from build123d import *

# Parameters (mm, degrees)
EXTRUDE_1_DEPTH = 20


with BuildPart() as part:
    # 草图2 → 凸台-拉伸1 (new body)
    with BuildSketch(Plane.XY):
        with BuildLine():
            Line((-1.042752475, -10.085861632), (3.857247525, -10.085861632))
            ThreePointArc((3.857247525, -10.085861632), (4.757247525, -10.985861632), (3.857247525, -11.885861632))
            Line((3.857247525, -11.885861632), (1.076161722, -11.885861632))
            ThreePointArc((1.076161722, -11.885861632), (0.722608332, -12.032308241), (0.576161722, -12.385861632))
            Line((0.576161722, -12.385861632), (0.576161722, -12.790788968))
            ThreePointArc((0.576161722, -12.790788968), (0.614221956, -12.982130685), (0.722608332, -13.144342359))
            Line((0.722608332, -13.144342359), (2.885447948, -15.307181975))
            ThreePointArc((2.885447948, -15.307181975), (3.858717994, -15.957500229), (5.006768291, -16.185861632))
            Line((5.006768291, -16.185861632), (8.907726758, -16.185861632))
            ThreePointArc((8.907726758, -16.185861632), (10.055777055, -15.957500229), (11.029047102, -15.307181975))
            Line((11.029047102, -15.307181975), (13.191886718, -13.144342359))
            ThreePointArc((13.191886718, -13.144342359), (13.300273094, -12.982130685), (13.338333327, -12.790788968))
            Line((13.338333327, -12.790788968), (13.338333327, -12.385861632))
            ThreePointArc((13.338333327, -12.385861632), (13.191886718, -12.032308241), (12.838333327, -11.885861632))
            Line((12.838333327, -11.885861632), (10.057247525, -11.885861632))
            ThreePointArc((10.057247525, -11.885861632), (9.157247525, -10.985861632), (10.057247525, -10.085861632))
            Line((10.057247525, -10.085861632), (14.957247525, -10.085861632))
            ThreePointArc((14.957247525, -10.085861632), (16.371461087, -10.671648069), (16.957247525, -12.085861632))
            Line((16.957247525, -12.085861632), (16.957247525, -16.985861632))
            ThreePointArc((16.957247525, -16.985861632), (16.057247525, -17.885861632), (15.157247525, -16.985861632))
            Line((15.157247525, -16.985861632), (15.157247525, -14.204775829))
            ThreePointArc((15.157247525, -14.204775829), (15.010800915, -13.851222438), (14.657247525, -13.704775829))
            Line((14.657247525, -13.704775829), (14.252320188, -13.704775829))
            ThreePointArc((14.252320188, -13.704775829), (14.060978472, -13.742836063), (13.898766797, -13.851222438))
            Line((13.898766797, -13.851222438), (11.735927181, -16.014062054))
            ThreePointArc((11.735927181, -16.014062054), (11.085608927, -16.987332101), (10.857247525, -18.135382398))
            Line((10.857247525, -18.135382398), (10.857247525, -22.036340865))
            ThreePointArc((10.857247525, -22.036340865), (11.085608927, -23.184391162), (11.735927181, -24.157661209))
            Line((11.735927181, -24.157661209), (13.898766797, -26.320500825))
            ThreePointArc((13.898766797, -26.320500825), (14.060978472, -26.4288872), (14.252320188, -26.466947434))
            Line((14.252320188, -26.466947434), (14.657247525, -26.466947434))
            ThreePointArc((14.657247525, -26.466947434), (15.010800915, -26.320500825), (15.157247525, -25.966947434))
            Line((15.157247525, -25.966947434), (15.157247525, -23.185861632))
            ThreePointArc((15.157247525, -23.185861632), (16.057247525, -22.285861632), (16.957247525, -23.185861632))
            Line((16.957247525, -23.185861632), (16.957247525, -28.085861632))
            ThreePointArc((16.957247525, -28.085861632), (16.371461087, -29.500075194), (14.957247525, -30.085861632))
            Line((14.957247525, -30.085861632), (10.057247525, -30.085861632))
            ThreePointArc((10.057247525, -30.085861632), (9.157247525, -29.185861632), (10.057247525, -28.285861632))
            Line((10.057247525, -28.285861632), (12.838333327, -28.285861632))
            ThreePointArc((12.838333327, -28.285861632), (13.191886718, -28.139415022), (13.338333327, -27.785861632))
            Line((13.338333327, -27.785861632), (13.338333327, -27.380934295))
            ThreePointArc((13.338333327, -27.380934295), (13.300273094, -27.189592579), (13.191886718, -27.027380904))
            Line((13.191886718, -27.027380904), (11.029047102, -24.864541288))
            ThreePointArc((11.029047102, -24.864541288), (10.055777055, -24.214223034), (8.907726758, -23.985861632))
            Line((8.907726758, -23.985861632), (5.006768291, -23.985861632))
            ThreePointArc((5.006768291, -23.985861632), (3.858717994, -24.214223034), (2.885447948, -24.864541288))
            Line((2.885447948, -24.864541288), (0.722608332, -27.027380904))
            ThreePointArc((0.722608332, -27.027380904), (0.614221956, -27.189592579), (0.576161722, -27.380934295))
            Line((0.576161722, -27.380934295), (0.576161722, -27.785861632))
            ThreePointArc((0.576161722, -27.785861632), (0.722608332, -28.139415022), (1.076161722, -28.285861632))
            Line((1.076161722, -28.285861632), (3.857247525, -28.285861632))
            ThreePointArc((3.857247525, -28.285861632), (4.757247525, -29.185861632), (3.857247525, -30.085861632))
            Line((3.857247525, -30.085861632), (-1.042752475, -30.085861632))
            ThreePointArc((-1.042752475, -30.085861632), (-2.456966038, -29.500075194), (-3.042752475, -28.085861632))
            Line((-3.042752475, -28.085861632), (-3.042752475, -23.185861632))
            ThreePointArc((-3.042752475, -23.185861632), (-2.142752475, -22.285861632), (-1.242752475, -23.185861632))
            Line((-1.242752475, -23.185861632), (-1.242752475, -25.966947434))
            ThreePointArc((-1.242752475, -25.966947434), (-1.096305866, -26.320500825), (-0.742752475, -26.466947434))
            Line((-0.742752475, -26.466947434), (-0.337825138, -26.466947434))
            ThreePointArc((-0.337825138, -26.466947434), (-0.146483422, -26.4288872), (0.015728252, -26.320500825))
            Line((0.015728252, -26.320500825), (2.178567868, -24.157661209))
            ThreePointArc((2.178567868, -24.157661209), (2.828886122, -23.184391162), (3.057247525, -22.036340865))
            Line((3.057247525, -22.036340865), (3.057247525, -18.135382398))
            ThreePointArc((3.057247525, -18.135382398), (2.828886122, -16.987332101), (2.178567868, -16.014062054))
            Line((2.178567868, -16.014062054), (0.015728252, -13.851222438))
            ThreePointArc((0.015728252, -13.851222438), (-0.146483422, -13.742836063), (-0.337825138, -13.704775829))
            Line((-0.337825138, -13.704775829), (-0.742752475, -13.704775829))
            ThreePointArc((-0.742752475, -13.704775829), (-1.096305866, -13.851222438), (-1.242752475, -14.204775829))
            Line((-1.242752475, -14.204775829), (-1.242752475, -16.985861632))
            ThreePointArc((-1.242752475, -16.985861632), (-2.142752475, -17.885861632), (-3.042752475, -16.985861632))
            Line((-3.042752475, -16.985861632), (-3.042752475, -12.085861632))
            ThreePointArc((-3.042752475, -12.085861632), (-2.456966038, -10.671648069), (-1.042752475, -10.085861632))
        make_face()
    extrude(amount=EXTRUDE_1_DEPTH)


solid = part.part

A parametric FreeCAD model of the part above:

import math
import FreeCAD as App
import Part
import Sketcher

V = App.Vector
Q = App.Units.Quantity

doc = App.newDocument("Part")
body = doc.addObject("PartDesign::Body", "Body")

# Sketch on XY plane
sketch1 = body.newObject("Sketcher::SketchObject", "Sketch")
sketch1.AttachmentSupport = (doc.getObject("XY_Plane"), [""])
sketch1.MapMode = "FlatFace"
sketch1.addGeometry(Part.LineSegment(V(3.86, -10.09, 0), V(-1.04, -10.09, 0)), False)
sketch1.addGeometry(Part.ArcOfCircle(Part.Circle(V(-1.04, -12.09, 0), V(0, 0, 1), 2), math.radians(90), math.radians(180)), False)
sketch1.addGeometry(Part.LineSegment(V(-3.04, -12.09, 0), V(-3.04, -16.99, 0)), False)
sketch1.addGeometry(Part.ArcOfCircle(Part.Circle(V(-2.14, -16.99, 0), V(0, 0, 1), 0.9), math.radians(180), math.radians(360)), False)
sketch1.addGeometry(Part.LineSegment(V(-1.24, -16.99, 0), V(-1.24, -14.2, 0)), False)
sketch1.addGeometry(Part.ArcOfCircle(Part.Circle(V(-0.74, -14.2, 0), V(0, 0, 1), 0.5), math.radians(90), math.radians(180)), False)
sketch1.addGeometry(Part.LineSegment(V(-0.74, -13.7, 0), V(-0.34, -13.7, 0)), False)
sketch1.addGeometry(Part.ArcOfCircle(Part.Circle(V(-0.34, -14.2, 0), V(0, 0, 1), 0.5), math.radians(45), math.radians(90)), False)
sketch1.addGeometry(Part.LineSegment(V(0.02, -13.85, 0), V(2.18, -16.01, 0)), False)
sketch1.addGeometry(Part.ArcOfCircle(Part.Circle(V(0.06, -18.14, 0), V(0, 0, 1), 3), math.radians(0), math.radians(45)), False)
sketch1.addGeometry(Part.LineSegment(V(3.06, -18.14, 0), V(3.06, -22.04, 0)), False)
sketch1.addGeometry(Part.ArcOfCircle(Part.Circle(V(0.06, -22.04, 0), V(0, 0, 1), 3), math.radians(-45), math.radians(0)), False)
sketch1.addGeometry(Part.LineSegment(V(2.18, -24.16, 0), V(0.02, -26.32, 0)), False)
sketch1.addGeometry(Part.ArcOfCircle(Part.Circle(V(-0.34, -25.97, 0), V(0, 0, 1), 0.5), math.radians(-90), math.radians(-45)), False)
sketch1.addGeometry(Part.LineSegment(V(-0.34, -26.47, 0), V(-0.74, -26.47, 0)), False)
sketch1.addGeometry(Part.ArcOfCircle(Part.Circle(V(-0.74, -25.97, 0), V(0, 0, 1), 0.5), math.radians(180), math.radians(270)), False)
sketch1.addGeometry(Part.LineSegment(V(-1.24, -25.97, 0), V(-1.24, -23.19, 0)), False)
sketch1.addGeometry(Part.ArcOfCircle(Part.Circle(V(-2.14, -23.19, 0), V(0, 0, 1), 0.9), math.radians(0), math.radians(180)), False)
sketch1.addGeometry(Part.LineSegment(V(-3.04, -23.19, 0), V(-3.04, -28.09, 0)), False)
sketch1.addGeometry(Part.ArcOfCircle(Part.Circle(V(-1.04, -28.09, 0), V(0, 0, 1), 2), math.radians(180), math.radians(270)), False)
sketch1.addGeometry(Part.LineSegment(V(-1.04, -30.09, 0), V(3.86, -30.09, 0)), False)
sketch1.addGeometry(Part.ArcOfCircle(Part.Circle(V(3.86, -29.19, 0), V(0, 0, 1), 0.9), math.radians(-90), math.radians(90)), False)
sketch1.addGeometry(Part.LineSegment(V(3.86, -28.29, 0), V(1.08, -28.29, 0)), False)
sketch1.addGeometry(Part.ArcOfCircle(Part.Circle(V(1.08, -27.79, 0), V(0, 0, 1), 0.5), math.radians(-180), math.radians(-90)), False)
sketch1.addGeometry(Part.LineSegment(V(0.58, -27.79, 0), V(0.58, -27.38, 0)), False)
sketch1.addGeometry(Part.ArcOfCircle(Part.Circle(V(1.08, -27.38, 0), V(0, 0, 1), 0.5), math.radians(135), math.radians(180)), False)
sketch1.addGeometry(Part.LineSegment(V(0.72, -27.03, 0), V(2.89, -24.86, 0)), False)
sketch1.addGeometry(Part.ArcOfCircle(Part.Circle(V(5.01, -26.99, 0), V(0, 0, 1), 3), math.radians(90), math.radians(135)), False)
sketch1.addGeometry(Part.LineSegment(V(5.01, -23.99, 0), V(8.91, -23.99, 0)), False)
sketch1.addGeometry(Part.ArcOfCircle(Part.Circle(V(8.91, -26.99, 0), V(0, 0, 1), 3), math.radians(45), math.radians(90)), False)
sketch1.addGeometry(Part.LineSegment(V(11.03, -24.86, 0), V(13.19, -27.03, 0)), False)
sketch1.addGeometry(Part.ArcOfCircle(Part.Circle(V(12.84, -27.38, 0), V(0, 0, 1), 0.5), math.radians(0), math.radians(45)), False)
sketch1.addGeometry(Part.LineSegment(V(13.34, -27.38, 0), V(13.34, -27.79, 0)), False)
sketch1.addGeometry(Part.ArcOfCircle(Part.Circle(V(12.84, -27.79, 0), V(0, 0, 1), 0.5), math.radians(-90), math.radians(0)), False)
sketch1.addGeometry(Part.LineSegment(V(12.84, -28.29, 0), V(10.06, -28.29, 0)), False)
sketch1.addGeometry(Part.ArcOfCircle(Part.Circle(V(10.06, -29.19, 0), V(0, 0, 1), 0.9), math.radians(90), math.radians(270)), False)
sketch1.addGeometry(Part.LineSegment(V(10.06, -30.09, 0), V(14.96, -30.09, 0)), False)
sketch1.addGeometry(Part.ArcOfCircle(Part.Circle(V(14.96, -28.09, 0), V(0, 0, 1), 2), math.radians(-90), math.radians(0)), False)
sketch1.addGeometry(Part.LineSegment(V(16.96, -28.09, 0), V(16.96, -23.19, 0)), False)
sketch1.addGeometry(Part.ArcOfCircle(Part.Circle(V(16.06, -23.19, 0), V(0, 0, 1), 0.9), math.radians(0), math.radians(180)), False)
sketch1.addGeometry(Part.LineSegment(V(15.16, -23.19, 0), V(15.16, -25.97, 0)), False)
sketch1.addGeometry(Part.ArcOfCircle(Part.Circle(V(14.66, -25.97, 0), V(0, 0, 1), 0.5), math.radians(-90), math.radians(0)), False)
sketch1.addGeometry(Part.LineSegment(V(14.66, -26.47, 0), V(14.25, -26.47, 0)), False)
sketch1.addGeometry(Part.ArcOfCircle(Part.Circle(V(14.25, -25.97, 0), V(0, 0, 1), 0.5), math.radians(-135), math.radians(-90)), False)
sketch1.addGeometry(Part.LineSegment(V(13.9, -26.32, 0), V(11.74, -24.16, 0)), False)
sketch1.addGeometry(Part.ArcOfCircle(Part.Circle(V(13.86, -22.04, 0), V(0, 0, 1), 3), math.radians(180), math.radians(225)), False)
sketch1.addGeometry(Part.LineSegment(V(10.86, -22.04, 0), V(10.86, -18.14, 0)), False)
sketch1.addGeometry(Part.ArcOfCircle(Part.Circle(V(13.86, -18.14, 0), V(0, 0, 1), 3), math.radians(135), math.radians(180)), False)
sketch1.addGeometry(Part.LineSegment(V(11.74, -16.01, 0), V(13.9, -13.85, 0)), False)
sketch1.addGeometry(Part.ArcOfCircle(Part.Circle(V(14.25, -14.2, 0), V(0, 0, 1), 0.5), math.radians(90), math.radians(135)), False)
sketch1.addGeometry(Part.LineSegment(V(14.25, -13.7, 0), V(14.66, -13.7, 0)), False)
sketch1.addGeometry(Part.ArcOfCircle(Part.Circle(V(14.66, -14.2, 0), V(0, 0, 1), 0.5), math.radians(0), math.radians(90)), False)
sketch1.addGeometry(Part.LineSegment(V(15.16, -14.2, 0), V(15.16, -16.99, 0)), False)
sketch1.addGeometry(Part.ArcOfCircle(Part.Circle(V(16.06, -16.99, 0), V(0, 0, 1), 0.9), math.radians(180), math.radians(360)), False)
sketch1.addGeometry(Part.LineSegment(V(16.96, -16.99, 0), V(16.96, -12.09, 0)), False)
sketch1.addGeometry(Part.ArcOfCircle(Part.Circle(V(14.96, -12.09, 0), V(0, 0, 1), 2), math.radians(0), math.radians(90)), False)
sketch1.addGeometry(Part.LineSegment(V(14.96, -10.09, 0), V(10.06, -10.09, 0)), False)
sketch1.addGeometry(Part.ArcOfCircle(Part.Circle(V(10.06, -10.99, 0), V(0, 0, 1), 0.9), math.radians(90), math.radians(270)), False)
sketch1.addGeometry(Part.LineSegment(V(10.06, -11.89, 0), V(12.84, -11.89, 0)), False)
sketch1.addGeometry(Part.ArcOfCircle(Part.Circle(V(12.84, -12.39, 0), V(0, 0, 1), 0.5), math.radians(0), math.radians(90)), False)
sketch1.addGeometry(Part.LineSegment(V(13.34, -12.39, 0), V(13.34, -12.79, 0)), False)
sketch1.addGeometry(Part.ArcOfCircle(Part.Circle(V(12.84, -12.79, 0), V(0, 0, 1), 0.5), math.radians(-45), math.radians(0)), False)
sketch1.addGeometry(Part.LineSegment(V(13.19, -13.14, 0), V(11.03, -15.31, 0)), False)
sketch1.addGeometry(Part.ArcOfCircle(Part.Circle(V(8.91, -13.19, 0), V(0, 0, 1), 3), math.radians(-90), math.radians(-45)), False)
sketch1.addGeometry(Part.LineSegment(V(8.91, -16.19, 0), V(5.01, -16.19, 0)), False)
sketch1.addGeometry(Part.ArcOfCircle(Part.Circle(V(5.01, -13.19, 0), V(0, 0, 1), 3), math.radians(-135), math.radians(-90)), False)
sketch1.addGeometry(Part.LineSegment(V(2.89, -15.31, 0), V(0.72, -13.14, 0)), False)
sketch1.addGeometry(Part.ArcOfCircle(Part.Circle(V(1.08, -12.79, 0), V(0, 0, 1), 0.5), math.radians(180), math.radians(225)), False)
sketch1.addGeometry(Part.LineSegment(V(0.58, -12.79, 0), V(0.58, -12.39, 0)), False)
sketch1.addGeometry(Part.ArcOfCircle(Part.Circle(V(1.08, -12.39, 0), V(0, 0, 1), 0.5), math.radians(90), math.radians(180)), False)
sketch1.addGeometry(Part.LineSegment(V(1.08, -11.89, 0), V(3.86, -11.89, 0)), False)
sketch1.addGeometry(Part.ArcOfCircle(Part.Circle(V(3.86, -10.99, 0), V(0, 0, 1), 0.9), math.radians(-90), math.radians(90)), False)
sketch1.addConstraint(Sketcher.Constraint("Tangent", 0, 2, 1, 1))
sketch1.addConstraint(Sketcher.Constraint("Tangent", 1, 2, 2, 1))
sketch1.addConstraint(Sketcher.Constraint("Tangent", 2, 2, 3, 1))
sketch1.addConstraint(Sketcher.Constraint("Tangent", 3, 2, 4, 1))
sketch1.addConstraint(Sketcher.Constraint("Tangent", 4, 2, 5, 2))
sketch1.addConstraint(Sketcher.Constraint("Tangent", 5, 1, 6, 1))
sketch1.addConstraint(Sketcher.Constraint("Tangent", 6, 2, 7, 2))
sketch1.addConstraint(Sketcher.Constraint("Tangent", 7, 1, 8, 1))
sketch1.addConstraint(Sketcher.Constraint("Tangent", 8, 2, 9, 2))
sketch1.addConstraint(Sketcher.Constraint("Tangent", 9, 1, 10, 1))
sketch1.addConstraint(Sketcher.Constraint("Tangent", 10, 2, 11, 2))
sketch1.addConstraint(Sketcher.Constraint("Tangent", 11, 1, 12, 1))
sketch1.addConstraint(Sketcher.Constraint("Tangent", 12, 2, 13, 2))
sketch1.addConstraint(Sketcher.Constraint("Tangent", 13, 1, 14, 1))
sketch1.addConstraint(Sketcher.Constraint("Tangent", 14, 2, 15, 2))
sketch1.addConstraint(Sketcher.Constraint("Tangent", 15, 1, 16, 1))
sketch1.addConstraint(Sketcher.Constraint("Tangent", 16, 2, 17, 1))
sketch1.addConstraint(Sketcher.Constraint("Tangent", 17, 2, 18, 1))
sketch1.addConstraint(Sketcher.Constraint("Tangent", 18, 2, 19, 1))
sketch1.addConstraint(Sketcher.Constraint("Tangent", 19, 2, 20, 1))
sketch1.addConstraint(Sketcher.Constraint("Tangent", 20, 2, 21, 1))
sketch1.addConstraint(Sketcher.Constraint("Tangent", 21, 2, 22, 1))
sketch1.addConstraint(Sketcher.Constraint("Tangent", 22, 2, 23, 2))
sketch1.addConstraint(Sketcher.Constraint("Tangent", 23, 1, 24, 1))
sketch1.addConstraint(Sketcher.Constraint("Tangent", 24, 2, 25, 2))
sketch1.addConstraint(Sketcher.Constraint("Tangent", 25, 1, 26, 1))
sketch1.addConstraint(Sketcher.Constraint("Tangent", 26, 2, 27, 2))
sketch1.addConstraint(Sketcher.Constraint("Tangent", 27, 1, 28, 1))
sketch1.addConstraint(Sketcher.Constraint("Tangent", 28, 2, 29, 2))
sketch1.addConstraint(Sketcher.Constraint("Tangent", 29, 1, 30, 1))
sketch1.addConstraint(Sketcher.Constraint("Tangent", 30, 2, 31, 2))
sketch1.addConstraint(Sketcher.Constraint("Tangent", 31, 1, 32, 1))
sketch1.addConstraint(Sketcher.Constraint("Tangent", 32, 2, 33, 2))
sketch1.addConstraint(Sketcher.Constraint("Tangent", 33, 1, 34, 1))
sketch1.addConstraint(Sketcher.Constraint("Tangent", 34, 2, 35, 1))
sketch1.addConstraint(Sketcher.Constraint("Tangent", 35, 2, 36, 1))
sketch1.addConstraint(Sketcher.Constraint("Tangent", 36, 2, 37, 1))
sketch1.addConstraint(Sketcher.Constraint("Tangent", 37, 2, 38, 1))
sketch1.addConstraint(Sketcher.Constraint("Tangent", 38, 2, 39, 1))
sketch1.addConstraint(Sketcher.Constraint("Tangent", 39, 2, 40, 1))
sketch1.addConstraint(Sketcher.Constraint("Tangent", 40, 2, 41, 2))
sketch1.addConstraint(Sketcher.Constraint("Tangent", 41, 1, 42, 1))
sketch1.addConstraint(Sketcher.Constraint("Tangent", 42, 2, 43, 2))
sketch1.addConstraint(Sketcher.Constraint("Tangent", 43, 1, 44, 1))
sketch1.addConstraint(Sketcher.Constraint("Tangent", 44, 2, 45, 2))
sketch1.addConstraint(Sketcher.Constraint("Tangent", 45, 1, 46, 1))
sketch1.addConstraint(Sketcher.Constraint("Tangent", 46, 2, 47, 2))
sketch1.addConstraint(Sketcher.Constraint("Tangent", 47, 1, 48, 1))
sketch1.addConstraint(Sketcher.Constraint("Tangent", 48, 2, 49, 2))
sketch1.addConstraint(Sketcher.Constraint("Tangent", 49, 1, 50, 1))
sketch1.addConstraint(Sketcher.Constraint("Tangent", 50, 2, 51, 2))
sketch1.addConstraint(Sketcher.Constraint("Tangent", 51, 1, 52, 1))
sketch1.addConstraint(Sketcher.Constraint("Tangent", 52, 2, 53, 1))
sketch1.addConstraint(Sketcher.Constraint("Tangent", 53, 2, 54, 1))
sketch1.addConstraint(Sketcher.Constraint("Tangent", 54, 2, 55, 1))
sketch1.addConstraint(Sketcher.Constraint("Tangent", 55, 2, 56, 1))
sketch1.addConstraint(Sketcher.Constraint("Tangent", 56, 2, 57, 1))
sketch1.addConstraint(Sketcher.Constraint("Tangent", 57, 2, 58, 1))
sketch1.addConstraint(Sketcher.Constraint("Tangent", 58, 2, 59, 2))
sketch1.addConstraint(Sketcher.Constraint("Tangent", 59, 1, 60, 1))
sketch1.addConstraint(Sketcher.Constraint("Tangent", 60, 2, 61, 2))
sketch1.addConstraint(Sketcher.Constraint("Tangent", 61, 1, 62, 1))
sketch1.addConstraint(Sketcher.Constraint("Tangent", 62, 2, 63, 2))
sketch1.addConstraint(Sketcher.Constraint("Tangent", 63, 1, 64, 1))
sketch1.addConstraint(Sketcher.Constraint("Tangent", 64, 2, 65, 2))
sketch1.addConstraint(Sketcher.Constraint("Tangent", 65, 1, 66, 1))
sketch1.addConstraint(Sketcher.Constraint("Tangent", 66, 2, 67, 2))
sketch1.addConstraint(Sketcher.Constraint("Tangent", 67, 1, 68, 1))
sketch1.addConstraint(Sketcher.Constraint("Tangent", 68, 2, 69, 2))
sketch1.addConstraint(Sketcher.Constraint("Tangent", 69, 1, 70, 1))
sketch1.addConstraint(Sketcher.Constraint("Tangent", 70, 2, 71, 1))
sketch1.addConstraint(Sketcher.Constraint("Tangent", 71, 2, 0, 1))
sketch1.addConstraint(Sketcher.Constraint("Horizontal", 0))
sketch1.addConstraint(Sketcher.Constraint("Vertical", 2))
sketch1.addConstraint(Sketcher.Constraint("Vertical", 4))
sketch1.addConstraint(Sketcher.Constraint("Horizontal", 6))
sketch1.addConstraint(Sketcher.Constraint("Vertical", 10))
sketch1.addConstraint(Sketcher.Constraint("Horizontal", 14))
sketch1.addConstraint(Sketcher.Constraint("Vertical", 16))
sketch1.addConstraint(Sketcher.Constraint("Vertical", 18))
sketch1.addConstraint(Sketcher.Constraint("Horizontal", 20))
sketch1.addConstraint(Sketcher.Constraint("Horizontal", 22))
sketch1.addConstraint(Sketcher.Constraint("Vertical", 24))
sketch1.addConstraint(Sketcher.Constraint("Horizontal", 28))
sketch1.addConstraint(Sketcher.Constraint("Vertical", 32))
sketch1.addConstraint(Sketcher.Constraint("Horizontal", 34))
sketch1.addConstraint(Sketcher.Constraint("Horizontal", 36))
sketch1.addConstraint(Sketcher.Constraint("Vertical", 38))
sketch1.addConstraint(Sketcher.Constraint("Vertical", 40))
sketch1.addConstraint(Sketcher.Constraint("Horizontal", 42))
sketch1.addConstraint(Sketcher.Constraint("Vertical", 46))
sketch1.addConstraint(Sketcher.Constraint("Horizontal", 50))
sketch1.addConstraint(Sketcher.Constraint("Vertical", 52))
sketch1.addConstraint(Sketcher.Constraint("Vertical", 54))
sketch1.addConstraint(Sketcher.Constraint("Horizontal", 56))
sketch1.addConstraint(Sketcher.Constraint("Horizontal", 58))
sketch1.addConstraint(Sketcher.Constraint("Vertical", 60))
sketch1.addConstraint(Sketcher.Constraint("Horizontal", 64))
sketch1.addConstraint(Sketcher.Constraint("Vertical", 68))
sketch1.addConstraint(Sketcher.Constraint("Horizontal", 70))
sketch1.addConstraint(Sketcher.Constraint("Equal", 5, 7))
sketch1.addConstraint(Sketcher.Constraint("Equal", 9, 11))
sketch1.addConstraint(Sketcher.Constraint("Equal", 7, 13))
sketch1.addConstraint(Sketcher.Constraint("Equal", 13, 15))
sketch1.addConstraint(Sketcher.Constraint("Equal", 3, 17))
sketch1.addConstraint(Sketcher.Constraint("Equal", 1, 19))
sketch1.addConstraint(Sketcher.Constraint("Equal", 17, 21))
sketch1.addConstraint(Sketcher.Constraint("Equal", 15, 23))
sketch1.addConstraint(Sketcher.Constraint("Equal", 23, 25))
sketch1.addConstraint(Sketcher.Constraint("Equal", 11, 27))
sketch1.addConstraint(Sketcher.Constraint("Equal", 27, 29))
sketch1.addConstraint(Sketcher.Constraint("Equal", 25, 31))
sketch1.addConstraint(Sketcher.Constraint("Equal", 31, 33))
sketch1.addConstraint(Sketcher.Constraint("Equal", 21, 35))
sketch1.addConstraint(Sketcher.Constraint("Equal", 19, 37))
sketch1.addConstraint(Sketcher.Constraint("Equal", 35, 39))
sketch1.addConstraint(Sketcher.Constraint("Equal", 33, 41))
sketch1.addConstraint(Sketcher.Constraint("Equal", 41, 43))
sketch1.addConstraint(Sketcher.Constraint("Equal", 29, 45))
sketch1.addConstraint(Sketcher.Constraint("Equal", 45, 47))
sketch1.addConstraint(Sketcher.Constraint("Equal", 43, 49))
sketch1.addConstraint(Sketcher.Constraint("Equal", 49, 51))
sketch1.addConstraint(Sketcher.Constraint("Equal", 39, 53))
sketch1.addConstraint(Sketcher.Constraint("Equal", 37, 55))
sketch1.addConstraint(Sketcher.Constraint("Equal", 53, 57))
sketch1.addConstraint(Sketcher.Constraint("Equal", 51, 59))
sketch1.addConstraint(Sketcher.Constraint("Equal", 59, 61))
sketch1.addConstraint(Sketcher.Constraint("Equal", 47, 63))
sketch1.addConstraint(Sketcher.Constraint("Equal", 63, 65))
sketch1.addConstraint(Sketcher.Constraint("Equal", 61, 67))
sketch1.addConstraint(Sketcher.Constraint("Equal", 67, 69))
sketch1.addConstraint(Sketcher.Constraint("Equal", 57, 71))
sketch1.addConstraint(Sketcher.Constraint("Perpendicular", 8, 12))
sketch1.addConstraint(Sketcher.Constraint("Parallel", 12, 26))
sketch1.addConstraint(Sketcher.Constraint("Perpendicular", 26, 30))
sketch1.addConstraint(Sketcher.Constraint("Parallel", 30, 44))
sketch1.addConstraint(Sketcher.Constraint("Perpendicular", 44, 48))
sketch1.addConstraint(Sketcher.Constraint("Parallel", 48, 62))
sketch1.addConstraint(Sketcher.Constraint("Perpendicular", 62, 66))
sketch1.addConstraint(Sketcher.Constraint("Horizontal", 25, 3, 31, 3))
sketch1.addConstraint(Sketcher.Constraint("Horizontal", 23, 3, 33, 3))
sketch1.addConstraint(Sketcher.Constraint("Horizontal", 17, 3, 39, 3))
sketch1.addConstraint(Sketcher.Constraint("Horizontal", 15, 3, 41, 3))
sketch1.addConstraint(Sketcher.Constraint("Horizontal", 11, 3, 45, 3))
sketch1.addConstraint(Sketcher.Constraint("Horizontal", 9, 3, 47, 3))
sketch1.addConstraint(Sketcher.Constraint("Horizontal", 7, 3, 49, 3))
sketch1.addConstraint(Sketcher.Constraint("Horizontal", 3, 3, 53, 3))
sketch1.addConstraint(Sketcher.Constraint("Horizontal", 1, 3, 55, 3))
sketch1.addConstraint(Sketcher.Constraint("Horizontal", 61, 3, 67, 3))
sketch1.addConstraint(Sketcher.Constraint("Horizontal", 26, 2, 29, 1))
sketch1.addConstraint(Sketcher.Constraint("Vertical", 7, 3, 13, 3))
sketch1.addConstraint(Sketcher.Constraint("Vertical", 5, 3, 15, 3))
sketch1.addConstraint(Sketcher.Constraint("Vertical", 41, 3, 51, 3))
sketch1.addConstraint(Sketcher.Constraint("Vertical", 35, 3, 57, 3))
sketch1.addConstraint(Sketcher.Constraint("Vertical", 33, 3, 59, 3))
sketch1.addConstraint(Sketcher.Constraint("Vertical", 29, 3, 63, 3))
sketch1.addConstraint(Sketcher.Constraint("Vertical", 27, 3, 65, 3))
sketch1.addConstraint(Sketcher.Constraint("Vertical", 21, 3, 71, 3))
sketch1.addConstraint(Sketcher.Constraint("Equal", 22, 34))
sketch1.addConstraint(Sketcher.Constraint("Equal", 20, 36))
sketch1.addConstraint(Sketcher.Constraint("Equal", 14, 42))
sketch1.addConstraint(Sketcher.Constraint("Equal", 56, 2))
sketch1.addConstraint(Sketcher.Constraint("Equal", 70, 4))
sketch1.addConstraint(Sketcher.Constraint("Equal", 64, 10))
sketch1.addConstraint(Sketcher.Constraint("Equal", 4, 16))
sketch1.addConstraint(Sketcher.Constraint("Equal", 2, 18))
sketch1.addConstraint(Sketcher.Constraint("Equal", 50, 24))
sketch1.addConstraint(Sketcher.Constraint("Equal", 32, 60))
sketch1.addConstraint(Sketcher.Constraint("Equal", 12, 26))
sketch1.addConstraint(Sketcher.Constraint("Radius", 1, Q("2 mm")))
sketch1.addConstraint(Sketcher.Constraint("Radius", 9, Q("3 mm")))
sketch1.addConstraint(Sketcher.Constraint("Radius", 3, Q("0.9 mm")))
sketch1.addConstraint(Sketcher.Constraint("Radius", 5, Q("0.5 mm")))
sketch1.addConstraint(Sketcher.Constraint("DistanceX", 0, 2, 0, 1, Q("4.9 mm")))
sketch1.addConstraint(Sketcher.Constraint("DistanceX", 28, 1, 28, 2, Q("3.900958 mm")))
sketch1.addConstraint(Sketcher.Constraint("DistanceY", 12, 2, -1, 1, Q("26.320501 mm")))
sketch1.addConstraint(Sketcher.Constraint("DistanceX", 6, 1, 6, 2, Q("0.404927 mm")))
sketch1.addConstraint(Sketcher.Constraint("DistanceX", 22, 2, 22, 1, Q("2.781086 mm")))
sketch1.addConstraint(Sketcher.Constraint("DistanceY", 1, 3, -1, 1, Q("12.085862 mm")))
sketch1.addConstraint(Sketcher.Constraint("DistanceX", -1, 1, 23, 3, Q("1.076162 mm")))
pad1 = body.newObject("PartDesign::Pad", "Pad")
pad1.Profile = sketch1
pad1.Length = 20

doc.recompute()
